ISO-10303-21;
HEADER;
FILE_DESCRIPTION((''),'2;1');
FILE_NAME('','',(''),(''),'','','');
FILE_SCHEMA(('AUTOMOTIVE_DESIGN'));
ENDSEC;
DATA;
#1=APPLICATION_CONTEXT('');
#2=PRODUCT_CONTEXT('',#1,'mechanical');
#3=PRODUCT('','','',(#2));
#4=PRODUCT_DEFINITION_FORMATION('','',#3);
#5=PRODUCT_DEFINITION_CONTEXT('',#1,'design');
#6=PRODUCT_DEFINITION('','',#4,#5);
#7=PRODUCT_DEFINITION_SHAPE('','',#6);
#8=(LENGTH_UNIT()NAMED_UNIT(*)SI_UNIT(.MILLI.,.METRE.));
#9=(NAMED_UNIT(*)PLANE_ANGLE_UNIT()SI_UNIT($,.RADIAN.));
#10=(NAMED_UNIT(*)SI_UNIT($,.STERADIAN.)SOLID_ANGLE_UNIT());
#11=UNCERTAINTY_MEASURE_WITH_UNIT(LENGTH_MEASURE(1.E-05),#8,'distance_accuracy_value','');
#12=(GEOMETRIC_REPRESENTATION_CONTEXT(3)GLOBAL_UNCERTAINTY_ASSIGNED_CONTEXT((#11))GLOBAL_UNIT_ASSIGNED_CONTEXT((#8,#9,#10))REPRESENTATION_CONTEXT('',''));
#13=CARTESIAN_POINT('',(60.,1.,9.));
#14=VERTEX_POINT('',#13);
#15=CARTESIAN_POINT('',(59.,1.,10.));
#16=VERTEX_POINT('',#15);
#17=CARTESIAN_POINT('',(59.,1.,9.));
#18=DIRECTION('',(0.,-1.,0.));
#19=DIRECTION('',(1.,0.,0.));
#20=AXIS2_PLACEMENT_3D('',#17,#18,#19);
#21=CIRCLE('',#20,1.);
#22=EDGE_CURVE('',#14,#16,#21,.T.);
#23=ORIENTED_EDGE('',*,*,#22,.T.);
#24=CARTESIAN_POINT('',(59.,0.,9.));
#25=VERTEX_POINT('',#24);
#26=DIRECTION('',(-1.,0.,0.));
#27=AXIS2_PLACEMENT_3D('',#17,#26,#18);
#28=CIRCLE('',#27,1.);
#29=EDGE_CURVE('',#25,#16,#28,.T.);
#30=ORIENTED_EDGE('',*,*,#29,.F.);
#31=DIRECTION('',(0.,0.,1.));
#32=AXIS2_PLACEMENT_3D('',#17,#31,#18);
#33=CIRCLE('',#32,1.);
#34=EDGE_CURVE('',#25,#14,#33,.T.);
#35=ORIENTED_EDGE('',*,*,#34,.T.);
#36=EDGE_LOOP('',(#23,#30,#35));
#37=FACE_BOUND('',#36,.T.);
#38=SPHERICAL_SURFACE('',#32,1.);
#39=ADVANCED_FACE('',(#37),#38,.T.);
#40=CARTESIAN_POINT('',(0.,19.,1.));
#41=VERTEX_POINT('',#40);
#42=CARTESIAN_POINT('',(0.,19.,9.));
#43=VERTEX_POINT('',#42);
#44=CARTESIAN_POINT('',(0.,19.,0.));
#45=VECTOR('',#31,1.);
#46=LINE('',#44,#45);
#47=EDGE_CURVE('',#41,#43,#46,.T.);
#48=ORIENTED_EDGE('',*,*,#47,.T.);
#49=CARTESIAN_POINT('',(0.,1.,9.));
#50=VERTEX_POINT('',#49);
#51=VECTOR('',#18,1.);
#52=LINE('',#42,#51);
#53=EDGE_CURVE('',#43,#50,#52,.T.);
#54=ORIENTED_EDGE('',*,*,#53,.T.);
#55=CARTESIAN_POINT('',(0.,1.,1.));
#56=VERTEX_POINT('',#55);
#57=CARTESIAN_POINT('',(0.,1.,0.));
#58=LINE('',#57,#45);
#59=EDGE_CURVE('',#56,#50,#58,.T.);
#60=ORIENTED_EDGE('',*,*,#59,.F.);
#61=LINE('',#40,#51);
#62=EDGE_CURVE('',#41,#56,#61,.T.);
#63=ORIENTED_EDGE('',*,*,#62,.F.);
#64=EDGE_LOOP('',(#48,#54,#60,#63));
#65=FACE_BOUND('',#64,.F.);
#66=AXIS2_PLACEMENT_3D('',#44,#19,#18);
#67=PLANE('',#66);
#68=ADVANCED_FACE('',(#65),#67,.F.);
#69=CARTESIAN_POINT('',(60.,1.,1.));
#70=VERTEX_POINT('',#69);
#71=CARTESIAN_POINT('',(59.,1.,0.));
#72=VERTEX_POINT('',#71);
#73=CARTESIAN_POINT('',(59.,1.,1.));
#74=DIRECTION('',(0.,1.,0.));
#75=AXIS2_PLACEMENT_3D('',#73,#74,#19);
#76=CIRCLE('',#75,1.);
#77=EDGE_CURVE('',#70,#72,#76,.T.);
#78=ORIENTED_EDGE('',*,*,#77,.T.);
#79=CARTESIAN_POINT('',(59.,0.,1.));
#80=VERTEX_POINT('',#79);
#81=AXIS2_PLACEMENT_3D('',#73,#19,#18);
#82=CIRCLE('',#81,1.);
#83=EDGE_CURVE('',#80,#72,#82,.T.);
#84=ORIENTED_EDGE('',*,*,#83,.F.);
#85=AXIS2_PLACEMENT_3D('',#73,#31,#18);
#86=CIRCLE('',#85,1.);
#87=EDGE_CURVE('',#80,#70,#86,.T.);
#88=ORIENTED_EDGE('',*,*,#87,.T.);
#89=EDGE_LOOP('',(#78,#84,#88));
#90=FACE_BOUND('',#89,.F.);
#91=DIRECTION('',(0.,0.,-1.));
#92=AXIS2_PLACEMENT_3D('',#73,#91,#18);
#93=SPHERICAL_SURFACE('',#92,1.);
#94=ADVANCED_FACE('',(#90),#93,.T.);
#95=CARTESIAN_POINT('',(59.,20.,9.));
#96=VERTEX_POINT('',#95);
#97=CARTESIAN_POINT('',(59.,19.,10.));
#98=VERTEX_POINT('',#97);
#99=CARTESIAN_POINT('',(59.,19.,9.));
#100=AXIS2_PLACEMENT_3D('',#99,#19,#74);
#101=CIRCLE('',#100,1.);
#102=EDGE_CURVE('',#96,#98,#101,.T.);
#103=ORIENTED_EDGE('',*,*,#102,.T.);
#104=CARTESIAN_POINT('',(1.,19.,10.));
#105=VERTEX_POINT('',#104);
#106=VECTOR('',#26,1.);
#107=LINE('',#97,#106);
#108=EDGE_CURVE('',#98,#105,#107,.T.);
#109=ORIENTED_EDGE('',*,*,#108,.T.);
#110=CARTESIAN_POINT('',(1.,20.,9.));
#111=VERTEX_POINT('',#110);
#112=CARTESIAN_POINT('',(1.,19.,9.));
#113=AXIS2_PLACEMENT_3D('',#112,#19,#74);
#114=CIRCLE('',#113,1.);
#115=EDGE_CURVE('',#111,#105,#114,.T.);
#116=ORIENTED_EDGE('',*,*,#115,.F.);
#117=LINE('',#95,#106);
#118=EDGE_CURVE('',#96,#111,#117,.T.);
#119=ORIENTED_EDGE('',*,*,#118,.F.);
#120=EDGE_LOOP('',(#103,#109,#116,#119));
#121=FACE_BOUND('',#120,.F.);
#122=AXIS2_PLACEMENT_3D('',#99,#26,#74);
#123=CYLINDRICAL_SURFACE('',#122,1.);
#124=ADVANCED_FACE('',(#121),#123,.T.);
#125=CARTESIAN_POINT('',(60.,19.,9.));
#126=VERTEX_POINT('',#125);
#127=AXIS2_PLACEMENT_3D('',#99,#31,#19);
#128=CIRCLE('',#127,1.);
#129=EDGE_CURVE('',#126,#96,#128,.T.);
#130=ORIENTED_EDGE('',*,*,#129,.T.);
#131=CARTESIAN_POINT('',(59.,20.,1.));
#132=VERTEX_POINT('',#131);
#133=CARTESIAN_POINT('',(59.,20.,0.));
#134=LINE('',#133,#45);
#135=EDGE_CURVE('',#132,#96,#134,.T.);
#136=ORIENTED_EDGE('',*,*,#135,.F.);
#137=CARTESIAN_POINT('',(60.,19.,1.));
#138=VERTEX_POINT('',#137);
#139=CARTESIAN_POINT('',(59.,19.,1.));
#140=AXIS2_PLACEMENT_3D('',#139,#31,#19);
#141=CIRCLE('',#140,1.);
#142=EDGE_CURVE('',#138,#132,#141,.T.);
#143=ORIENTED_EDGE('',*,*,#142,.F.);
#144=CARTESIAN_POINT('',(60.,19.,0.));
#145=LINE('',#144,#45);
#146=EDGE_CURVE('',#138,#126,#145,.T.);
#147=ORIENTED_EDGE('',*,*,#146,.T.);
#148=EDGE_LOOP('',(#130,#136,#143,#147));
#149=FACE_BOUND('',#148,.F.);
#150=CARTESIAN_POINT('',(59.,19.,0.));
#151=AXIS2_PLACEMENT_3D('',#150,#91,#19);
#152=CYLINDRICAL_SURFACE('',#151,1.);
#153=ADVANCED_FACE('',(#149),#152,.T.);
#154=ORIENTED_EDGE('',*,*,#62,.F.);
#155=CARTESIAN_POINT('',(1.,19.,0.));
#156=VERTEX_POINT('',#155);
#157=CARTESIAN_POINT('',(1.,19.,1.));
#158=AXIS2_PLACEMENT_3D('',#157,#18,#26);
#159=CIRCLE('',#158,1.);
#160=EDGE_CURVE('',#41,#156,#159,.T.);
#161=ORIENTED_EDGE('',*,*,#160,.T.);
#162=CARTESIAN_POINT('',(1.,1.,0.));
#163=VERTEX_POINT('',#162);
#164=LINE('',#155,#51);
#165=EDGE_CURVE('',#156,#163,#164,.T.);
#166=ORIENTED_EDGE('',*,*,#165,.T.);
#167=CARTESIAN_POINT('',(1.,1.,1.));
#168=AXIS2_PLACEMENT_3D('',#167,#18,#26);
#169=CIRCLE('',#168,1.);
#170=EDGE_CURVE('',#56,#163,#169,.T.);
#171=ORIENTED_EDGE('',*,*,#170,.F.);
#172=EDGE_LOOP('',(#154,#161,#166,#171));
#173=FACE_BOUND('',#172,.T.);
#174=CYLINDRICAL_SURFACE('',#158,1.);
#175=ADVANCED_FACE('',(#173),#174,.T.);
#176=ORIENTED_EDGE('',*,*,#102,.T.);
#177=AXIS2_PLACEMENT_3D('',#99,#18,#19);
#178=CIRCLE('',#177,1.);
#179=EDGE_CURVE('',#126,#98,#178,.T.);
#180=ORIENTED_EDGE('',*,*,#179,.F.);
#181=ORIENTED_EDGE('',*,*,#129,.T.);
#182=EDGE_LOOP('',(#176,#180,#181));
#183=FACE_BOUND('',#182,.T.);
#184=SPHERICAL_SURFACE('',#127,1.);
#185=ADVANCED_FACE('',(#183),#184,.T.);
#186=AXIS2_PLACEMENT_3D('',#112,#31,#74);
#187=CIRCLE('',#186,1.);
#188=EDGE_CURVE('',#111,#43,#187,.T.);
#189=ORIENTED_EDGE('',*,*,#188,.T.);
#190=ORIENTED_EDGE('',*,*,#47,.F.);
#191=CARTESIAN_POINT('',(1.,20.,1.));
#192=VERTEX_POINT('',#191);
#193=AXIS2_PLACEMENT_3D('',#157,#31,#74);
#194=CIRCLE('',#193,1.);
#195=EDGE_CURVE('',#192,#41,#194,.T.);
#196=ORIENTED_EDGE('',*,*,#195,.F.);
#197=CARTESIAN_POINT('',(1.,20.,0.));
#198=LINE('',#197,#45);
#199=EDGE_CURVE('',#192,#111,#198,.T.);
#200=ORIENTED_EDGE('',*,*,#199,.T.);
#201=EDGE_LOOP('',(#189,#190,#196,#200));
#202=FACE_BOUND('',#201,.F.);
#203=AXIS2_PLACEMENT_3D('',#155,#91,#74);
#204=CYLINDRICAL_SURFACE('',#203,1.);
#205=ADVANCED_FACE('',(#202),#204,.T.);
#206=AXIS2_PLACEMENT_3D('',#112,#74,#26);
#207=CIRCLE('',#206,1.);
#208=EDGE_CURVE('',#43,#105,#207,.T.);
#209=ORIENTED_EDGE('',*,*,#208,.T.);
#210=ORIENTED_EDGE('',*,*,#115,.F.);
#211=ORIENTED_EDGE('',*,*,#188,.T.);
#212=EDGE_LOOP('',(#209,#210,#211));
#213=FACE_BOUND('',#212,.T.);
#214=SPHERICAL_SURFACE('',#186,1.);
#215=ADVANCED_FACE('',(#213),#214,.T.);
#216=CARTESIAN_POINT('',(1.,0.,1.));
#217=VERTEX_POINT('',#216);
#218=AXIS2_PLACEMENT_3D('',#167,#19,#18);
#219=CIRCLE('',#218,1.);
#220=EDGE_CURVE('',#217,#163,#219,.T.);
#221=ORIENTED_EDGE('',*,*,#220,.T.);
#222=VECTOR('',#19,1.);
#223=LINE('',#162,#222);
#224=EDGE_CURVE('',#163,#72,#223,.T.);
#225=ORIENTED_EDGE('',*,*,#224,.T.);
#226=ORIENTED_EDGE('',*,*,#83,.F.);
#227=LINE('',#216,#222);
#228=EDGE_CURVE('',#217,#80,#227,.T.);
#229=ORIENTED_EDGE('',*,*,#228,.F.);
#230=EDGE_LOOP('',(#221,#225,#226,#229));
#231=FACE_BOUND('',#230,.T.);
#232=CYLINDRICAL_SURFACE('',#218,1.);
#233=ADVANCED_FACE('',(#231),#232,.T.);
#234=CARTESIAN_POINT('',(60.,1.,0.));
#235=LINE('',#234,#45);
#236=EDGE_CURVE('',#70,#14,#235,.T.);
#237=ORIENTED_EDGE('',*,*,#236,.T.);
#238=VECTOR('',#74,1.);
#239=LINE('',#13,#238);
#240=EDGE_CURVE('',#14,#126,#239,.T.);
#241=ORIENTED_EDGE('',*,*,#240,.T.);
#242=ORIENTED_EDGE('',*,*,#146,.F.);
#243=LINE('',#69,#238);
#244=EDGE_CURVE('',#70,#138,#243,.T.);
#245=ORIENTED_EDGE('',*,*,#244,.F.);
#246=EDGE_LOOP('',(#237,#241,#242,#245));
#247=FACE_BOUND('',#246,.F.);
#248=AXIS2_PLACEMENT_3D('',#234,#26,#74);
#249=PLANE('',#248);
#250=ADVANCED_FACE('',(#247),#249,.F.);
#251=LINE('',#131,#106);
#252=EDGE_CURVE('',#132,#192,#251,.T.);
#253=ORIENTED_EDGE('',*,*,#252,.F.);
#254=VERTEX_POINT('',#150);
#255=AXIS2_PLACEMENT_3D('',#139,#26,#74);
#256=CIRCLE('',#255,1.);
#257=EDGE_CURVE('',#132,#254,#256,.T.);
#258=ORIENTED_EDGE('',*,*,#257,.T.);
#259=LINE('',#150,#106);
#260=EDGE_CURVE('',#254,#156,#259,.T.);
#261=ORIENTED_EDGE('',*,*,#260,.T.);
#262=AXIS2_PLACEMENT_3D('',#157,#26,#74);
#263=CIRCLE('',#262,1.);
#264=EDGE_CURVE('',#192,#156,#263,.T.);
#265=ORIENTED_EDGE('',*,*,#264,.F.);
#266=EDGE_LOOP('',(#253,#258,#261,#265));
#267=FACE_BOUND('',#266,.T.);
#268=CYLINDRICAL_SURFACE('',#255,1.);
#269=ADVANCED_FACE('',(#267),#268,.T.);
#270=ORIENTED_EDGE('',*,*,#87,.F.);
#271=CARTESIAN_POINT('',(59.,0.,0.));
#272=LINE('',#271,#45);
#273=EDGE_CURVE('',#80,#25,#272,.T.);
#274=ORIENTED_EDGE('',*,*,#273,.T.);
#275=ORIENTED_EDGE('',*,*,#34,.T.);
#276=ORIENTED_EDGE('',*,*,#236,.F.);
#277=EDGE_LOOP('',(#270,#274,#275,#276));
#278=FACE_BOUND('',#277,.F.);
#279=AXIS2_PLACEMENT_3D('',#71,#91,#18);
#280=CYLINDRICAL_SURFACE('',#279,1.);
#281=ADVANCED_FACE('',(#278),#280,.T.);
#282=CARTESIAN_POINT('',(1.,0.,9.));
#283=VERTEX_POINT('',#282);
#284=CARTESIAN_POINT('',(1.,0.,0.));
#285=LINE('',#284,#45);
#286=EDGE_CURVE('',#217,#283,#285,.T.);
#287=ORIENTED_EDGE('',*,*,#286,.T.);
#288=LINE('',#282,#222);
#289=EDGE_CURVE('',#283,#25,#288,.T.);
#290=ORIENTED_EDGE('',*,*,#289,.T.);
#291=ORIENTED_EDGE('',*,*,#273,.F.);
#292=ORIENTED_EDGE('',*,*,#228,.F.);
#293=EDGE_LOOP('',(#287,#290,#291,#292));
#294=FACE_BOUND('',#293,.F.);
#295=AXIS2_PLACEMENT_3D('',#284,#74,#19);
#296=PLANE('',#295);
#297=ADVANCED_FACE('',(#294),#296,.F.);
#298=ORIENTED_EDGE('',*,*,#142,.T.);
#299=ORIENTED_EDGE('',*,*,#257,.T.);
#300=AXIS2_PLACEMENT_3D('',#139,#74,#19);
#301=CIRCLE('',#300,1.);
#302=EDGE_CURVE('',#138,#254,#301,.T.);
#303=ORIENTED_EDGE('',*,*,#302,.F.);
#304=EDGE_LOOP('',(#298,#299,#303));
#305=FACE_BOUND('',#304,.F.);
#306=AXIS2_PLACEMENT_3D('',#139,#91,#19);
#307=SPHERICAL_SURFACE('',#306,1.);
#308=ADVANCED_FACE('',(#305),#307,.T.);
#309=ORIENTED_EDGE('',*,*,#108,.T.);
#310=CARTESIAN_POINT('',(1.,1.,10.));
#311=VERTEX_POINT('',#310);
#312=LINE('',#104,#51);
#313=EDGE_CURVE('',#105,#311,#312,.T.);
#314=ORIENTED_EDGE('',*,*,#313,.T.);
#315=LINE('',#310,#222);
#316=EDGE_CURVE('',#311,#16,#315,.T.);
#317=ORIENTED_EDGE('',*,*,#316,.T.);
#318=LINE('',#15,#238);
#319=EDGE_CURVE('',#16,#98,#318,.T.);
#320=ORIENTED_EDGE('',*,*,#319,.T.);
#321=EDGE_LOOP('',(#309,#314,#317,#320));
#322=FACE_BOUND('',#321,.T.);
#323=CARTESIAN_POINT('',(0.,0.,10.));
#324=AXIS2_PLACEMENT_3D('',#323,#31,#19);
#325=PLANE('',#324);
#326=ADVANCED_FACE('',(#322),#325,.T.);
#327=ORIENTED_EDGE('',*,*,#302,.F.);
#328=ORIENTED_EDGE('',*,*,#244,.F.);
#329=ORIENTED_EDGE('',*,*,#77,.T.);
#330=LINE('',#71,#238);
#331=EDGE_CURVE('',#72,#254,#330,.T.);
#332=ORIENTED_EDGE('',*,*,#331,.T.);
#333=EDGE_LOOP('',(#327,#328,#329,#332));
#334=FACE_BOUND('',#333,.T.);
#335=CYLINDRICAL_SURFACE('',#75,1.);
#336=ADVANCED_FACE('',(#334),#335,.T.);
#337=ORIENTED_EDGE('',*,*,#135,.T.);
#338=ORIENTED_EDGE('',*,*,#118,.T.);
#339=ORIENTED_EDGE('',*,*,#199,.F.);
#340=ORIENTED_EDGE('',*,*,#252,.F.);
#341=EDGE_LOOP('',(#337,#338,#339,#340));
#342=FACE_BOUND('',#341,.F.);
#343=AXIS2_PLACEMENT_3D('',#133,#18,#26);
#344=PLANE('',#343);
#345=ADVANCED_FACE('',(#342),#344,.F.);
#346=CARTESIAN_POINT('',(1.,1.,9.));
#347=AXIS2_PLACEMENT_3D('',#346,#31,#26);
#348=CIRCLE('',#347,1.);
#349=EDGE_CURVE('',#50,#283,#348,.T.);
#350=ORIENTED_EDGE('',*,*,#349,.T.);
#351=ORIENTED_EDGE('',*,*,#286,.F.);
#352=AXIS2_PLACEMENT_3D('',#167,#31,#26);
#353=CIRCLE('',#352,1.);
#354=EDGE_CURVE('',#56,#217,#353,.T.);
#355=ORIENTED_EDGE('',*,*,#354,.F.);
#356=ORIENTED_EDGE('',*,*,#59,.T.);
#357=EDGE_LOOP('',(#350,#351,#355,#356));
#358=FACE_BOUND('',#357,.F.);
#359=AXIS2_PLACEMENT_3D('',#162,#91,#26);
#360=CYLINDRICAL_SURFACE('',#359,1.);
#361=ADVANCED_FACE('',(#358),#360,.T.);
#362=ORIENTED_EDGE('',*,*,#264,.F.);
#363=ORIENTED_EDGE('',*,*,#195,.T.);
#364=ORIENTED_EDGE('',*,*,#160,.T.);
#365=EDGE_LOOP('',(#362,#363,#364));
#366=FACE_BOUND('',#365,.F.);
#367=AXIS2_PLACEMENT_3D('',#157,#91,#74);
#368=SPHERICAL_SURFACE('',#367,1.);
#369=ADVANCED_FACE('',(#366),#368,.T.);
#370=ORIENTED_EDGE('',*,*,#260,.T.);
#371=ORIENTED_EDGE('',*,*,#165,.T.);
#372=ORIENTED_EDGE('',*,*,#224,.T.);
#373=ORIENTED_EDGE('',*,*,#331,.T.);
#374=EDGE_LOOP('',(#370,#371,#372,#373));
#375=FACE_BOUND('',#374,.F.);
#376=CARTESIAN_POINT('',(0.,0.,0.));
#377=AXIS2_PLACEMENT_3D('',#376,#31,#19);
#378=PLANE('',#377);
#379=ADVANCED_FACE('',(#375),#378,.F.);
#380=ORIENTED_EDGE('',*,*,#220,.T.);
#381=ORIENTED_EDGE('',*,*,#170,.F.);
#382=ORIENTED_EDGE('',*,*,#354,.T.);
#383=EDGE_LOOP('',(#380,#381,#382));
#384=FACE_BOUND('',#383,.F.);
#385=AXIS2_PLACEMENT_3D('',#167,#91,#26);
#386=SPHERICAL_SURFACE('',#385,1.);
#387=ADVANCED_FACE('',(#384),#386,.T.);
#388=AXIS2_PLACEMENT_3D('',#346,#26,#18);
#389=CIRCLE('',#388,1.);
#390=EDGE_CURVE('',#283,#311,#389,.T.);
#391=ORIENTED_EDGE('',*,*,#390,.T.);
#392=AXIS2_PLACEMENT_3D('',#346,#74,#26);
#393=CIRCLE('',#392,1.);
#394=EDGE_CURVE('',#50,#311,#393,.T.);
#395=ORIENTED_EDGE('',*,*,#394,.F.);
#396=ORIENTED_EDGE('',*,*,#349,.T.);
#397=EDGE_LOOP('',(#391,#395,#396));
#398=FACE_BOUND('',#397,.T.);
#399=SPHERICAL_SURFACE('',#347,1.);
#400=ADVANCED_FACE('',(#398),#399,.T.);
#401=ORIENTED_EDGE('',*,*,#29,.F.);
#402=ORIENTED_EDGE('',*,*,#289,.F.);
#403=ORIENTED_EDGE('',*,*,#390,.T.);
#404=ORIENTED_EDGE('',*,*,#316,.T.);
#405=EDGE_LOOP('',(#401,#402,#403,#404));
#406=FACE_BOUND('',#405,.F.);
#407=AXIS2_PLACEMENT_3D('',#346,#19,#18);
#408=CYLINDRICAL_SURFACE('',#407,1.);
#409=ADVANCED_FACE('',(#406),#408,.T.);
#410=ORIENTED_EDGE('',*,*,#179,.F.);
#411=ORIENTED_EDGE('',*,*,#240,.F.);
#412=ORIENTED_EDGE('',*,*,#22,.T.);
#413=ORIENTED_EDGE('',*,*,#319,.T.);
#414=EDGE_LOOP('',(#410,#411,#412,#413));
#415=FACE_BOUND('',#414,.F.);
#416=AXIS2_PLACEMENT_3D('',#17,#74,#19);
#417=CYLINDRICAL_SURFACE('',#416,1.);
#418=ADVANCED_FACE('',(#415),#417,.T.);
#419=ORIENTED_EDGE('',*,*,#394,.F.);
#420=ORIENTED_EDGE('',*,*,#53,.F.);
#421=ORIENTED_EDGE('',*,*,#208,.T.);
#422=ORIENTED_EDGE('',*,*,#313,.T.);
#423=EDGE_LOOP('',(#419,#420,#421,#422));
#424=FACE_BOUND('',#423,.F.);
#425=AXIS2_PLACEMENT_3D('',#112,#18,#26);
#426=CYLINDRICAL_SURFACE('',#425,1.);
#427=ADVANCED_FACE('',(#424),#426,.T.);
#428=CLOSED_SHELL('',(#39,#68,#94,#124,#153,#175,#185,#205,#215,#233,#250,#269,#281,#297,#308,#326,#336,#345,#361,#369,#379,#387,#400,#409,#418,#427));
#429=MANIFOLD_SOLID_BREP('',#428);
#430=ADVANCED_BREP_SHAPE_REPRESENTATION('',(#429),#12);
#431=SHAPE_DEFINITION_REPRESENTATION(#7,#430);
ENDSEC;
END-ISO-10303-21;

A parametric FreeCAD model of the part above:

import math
import FreeCAD as App
import Part
import Sketcher

V = App.Vector


def edges_at(feature, points):
    """Names of the edges that pass closest to the given points."""
    edges = feature.Shape.Edges
    near = lambda p: min(range(len(edges)), key=lambda i: edges[i].distToShape(Part.Vertex(*p))[0])
    return sorted({f"Edge{near(p) + 1}" for p in points})

doc = App.newDocument("Part")
body = doc.addObject("PartDesign::Body", "Body")

# Sketch on XY plane
sketch1 = doc.addObject("Sketcher::SketchObject", "Sketch")
body.addObject(sketch1)
sketch1.AttachmentSupport = (doc.XY_Plane, [""])
sketch1.MapMode = "FlatFace"
sketch1.addGeometry(Part.ArcOfCircle(Part.Circle(V(1, 1, 0), V(0, 0, 1), 1), math.radians(180), math.radians(270)), False)
sketch1.addGeometry(Part.LineSegment(V(1, 0, 0), V(59, 0, 0)), False)
sketch1.addGeometry(Part.ArcOfCircle(Part.Circle(V(59, 1, 0), V(0, 0, 1), 1), math.radians(-90), math.radians(0)), False)
sketch1.addGeometry(Part.LineSegment(V(60, 1, 0), V(60, 19, 0)), False)
sketch1.addGeometry(Part.ArcOfCircle(Part.Circle(V(59, 19, 0), V(0, 0, 1), 1), math.radians(0), math.radians(90)), False)
sketch1.addGeometry(Part.LineSegment(V(59, 20, 0), V(1, 20, 0)), False)
sketch1.addGeometry(Part.ArcOfCircle(Part.Circle(V(1, 19, 0), V(0, 0, 1), 1), math.radians(90), math.radians(180)), False)
sketch1.addGeometry(Part.LineSegment(V(0, 19, 0), V(0, 1, 0)), False)
sketch1.addConstraint(Sketcher.Constraint("Tangent", 0, 2, 1, 1))
sketch1.addConstraint(Sketcher.Constraint("Tangent", 1, 2, 2, 1))
sketch1.addConstraint(Sketcher.Constraint("Tangent", 2, 2, 3, 1))
sketch1.addConstraint(Sketcher.Constraint("Tangent", 3, 2, 4, 1))
sketch1.addConstraint(Sketcher.Constraint("Tangent", 4, 2, 5, 1))
sketch1.addConstraint(Sketcher.Constraint("Tangent", 5, 2, 6, 1))
sketch1.addConstraint(Sketcher.Constraint("Tangent", 6, 2, 7, 1))
sketch1.addConstraint(Sketcher.Constraint("Tangent", 7, 2, 0, 1))
sketch1.addConstraint(Sketcher.Constraint("Horizontal", 1))
sketch1.addConstraint(Sketcher.Constraint("Vertical", 3))
sketch1.addConstraint(Sketcher.Constraint("Horizontal", 5))
sketch1.addConstraint(Sketcher.Constraint("Vertical", 7))
sketch1.addConstraint(Sketcher.Constraint("Equal", 0, 2))
sketch1.addConstraint(Sketcher.Constraint("Equal", 2, 4))
sketch1.addConstraint(Sketcher.Constraint("Equal", 4, 6))
sketch1.addConstraint(Sketcher.Constraint("PointOnObject", 0, 2, -1))
sketch1.addConstraint(Sketcher.Constraint("PointOnObject", 6, 2, -2))
sketch1.addConstraint(Sketcher.Constraint("Radius", 0, 1.0))
sketch1.addConstraint(Sketcher.Constraint("DistanceX", -1, 1, 2, 2, 60.0))
sketch1.addConstraint(Sketcher.Constraint("DistanceY", -1, 1, 4, 2, 20.0))
pad1 = doc.addObject("PartDesign::Pad", "Pad")
body.addObject(pad1)
pad1.Profile = sketch1
pad1.Length = 10
doc.recompute()

fillet = doc.addObject("PartDesign::Fillet", "Fillet")
body.addObject(fillet)
fillet.Base = (pad1, edges_at(pad1, [
    (0.293, 19.707, 10),
    (0, 10, 10),
    (0.293, 0.293, 10),
    (30, 0, 10),
    (59.707, 0.293, 10),
    (60, 10, 10),
    (59.707, 19.707, 10),
    (30, 20, 10),
    (59.707, 19.707, 0),
    (30, 20, 0),
    (0.293, 19.707, 0),
    (0, 10, 0),
    (0.293, 0.293, 0),
    (30, 0, 0),
    (59.707, 0.293, 0),
    (60, 10, 0),
]))
fillet.Radius = 1

doc.recompute()
